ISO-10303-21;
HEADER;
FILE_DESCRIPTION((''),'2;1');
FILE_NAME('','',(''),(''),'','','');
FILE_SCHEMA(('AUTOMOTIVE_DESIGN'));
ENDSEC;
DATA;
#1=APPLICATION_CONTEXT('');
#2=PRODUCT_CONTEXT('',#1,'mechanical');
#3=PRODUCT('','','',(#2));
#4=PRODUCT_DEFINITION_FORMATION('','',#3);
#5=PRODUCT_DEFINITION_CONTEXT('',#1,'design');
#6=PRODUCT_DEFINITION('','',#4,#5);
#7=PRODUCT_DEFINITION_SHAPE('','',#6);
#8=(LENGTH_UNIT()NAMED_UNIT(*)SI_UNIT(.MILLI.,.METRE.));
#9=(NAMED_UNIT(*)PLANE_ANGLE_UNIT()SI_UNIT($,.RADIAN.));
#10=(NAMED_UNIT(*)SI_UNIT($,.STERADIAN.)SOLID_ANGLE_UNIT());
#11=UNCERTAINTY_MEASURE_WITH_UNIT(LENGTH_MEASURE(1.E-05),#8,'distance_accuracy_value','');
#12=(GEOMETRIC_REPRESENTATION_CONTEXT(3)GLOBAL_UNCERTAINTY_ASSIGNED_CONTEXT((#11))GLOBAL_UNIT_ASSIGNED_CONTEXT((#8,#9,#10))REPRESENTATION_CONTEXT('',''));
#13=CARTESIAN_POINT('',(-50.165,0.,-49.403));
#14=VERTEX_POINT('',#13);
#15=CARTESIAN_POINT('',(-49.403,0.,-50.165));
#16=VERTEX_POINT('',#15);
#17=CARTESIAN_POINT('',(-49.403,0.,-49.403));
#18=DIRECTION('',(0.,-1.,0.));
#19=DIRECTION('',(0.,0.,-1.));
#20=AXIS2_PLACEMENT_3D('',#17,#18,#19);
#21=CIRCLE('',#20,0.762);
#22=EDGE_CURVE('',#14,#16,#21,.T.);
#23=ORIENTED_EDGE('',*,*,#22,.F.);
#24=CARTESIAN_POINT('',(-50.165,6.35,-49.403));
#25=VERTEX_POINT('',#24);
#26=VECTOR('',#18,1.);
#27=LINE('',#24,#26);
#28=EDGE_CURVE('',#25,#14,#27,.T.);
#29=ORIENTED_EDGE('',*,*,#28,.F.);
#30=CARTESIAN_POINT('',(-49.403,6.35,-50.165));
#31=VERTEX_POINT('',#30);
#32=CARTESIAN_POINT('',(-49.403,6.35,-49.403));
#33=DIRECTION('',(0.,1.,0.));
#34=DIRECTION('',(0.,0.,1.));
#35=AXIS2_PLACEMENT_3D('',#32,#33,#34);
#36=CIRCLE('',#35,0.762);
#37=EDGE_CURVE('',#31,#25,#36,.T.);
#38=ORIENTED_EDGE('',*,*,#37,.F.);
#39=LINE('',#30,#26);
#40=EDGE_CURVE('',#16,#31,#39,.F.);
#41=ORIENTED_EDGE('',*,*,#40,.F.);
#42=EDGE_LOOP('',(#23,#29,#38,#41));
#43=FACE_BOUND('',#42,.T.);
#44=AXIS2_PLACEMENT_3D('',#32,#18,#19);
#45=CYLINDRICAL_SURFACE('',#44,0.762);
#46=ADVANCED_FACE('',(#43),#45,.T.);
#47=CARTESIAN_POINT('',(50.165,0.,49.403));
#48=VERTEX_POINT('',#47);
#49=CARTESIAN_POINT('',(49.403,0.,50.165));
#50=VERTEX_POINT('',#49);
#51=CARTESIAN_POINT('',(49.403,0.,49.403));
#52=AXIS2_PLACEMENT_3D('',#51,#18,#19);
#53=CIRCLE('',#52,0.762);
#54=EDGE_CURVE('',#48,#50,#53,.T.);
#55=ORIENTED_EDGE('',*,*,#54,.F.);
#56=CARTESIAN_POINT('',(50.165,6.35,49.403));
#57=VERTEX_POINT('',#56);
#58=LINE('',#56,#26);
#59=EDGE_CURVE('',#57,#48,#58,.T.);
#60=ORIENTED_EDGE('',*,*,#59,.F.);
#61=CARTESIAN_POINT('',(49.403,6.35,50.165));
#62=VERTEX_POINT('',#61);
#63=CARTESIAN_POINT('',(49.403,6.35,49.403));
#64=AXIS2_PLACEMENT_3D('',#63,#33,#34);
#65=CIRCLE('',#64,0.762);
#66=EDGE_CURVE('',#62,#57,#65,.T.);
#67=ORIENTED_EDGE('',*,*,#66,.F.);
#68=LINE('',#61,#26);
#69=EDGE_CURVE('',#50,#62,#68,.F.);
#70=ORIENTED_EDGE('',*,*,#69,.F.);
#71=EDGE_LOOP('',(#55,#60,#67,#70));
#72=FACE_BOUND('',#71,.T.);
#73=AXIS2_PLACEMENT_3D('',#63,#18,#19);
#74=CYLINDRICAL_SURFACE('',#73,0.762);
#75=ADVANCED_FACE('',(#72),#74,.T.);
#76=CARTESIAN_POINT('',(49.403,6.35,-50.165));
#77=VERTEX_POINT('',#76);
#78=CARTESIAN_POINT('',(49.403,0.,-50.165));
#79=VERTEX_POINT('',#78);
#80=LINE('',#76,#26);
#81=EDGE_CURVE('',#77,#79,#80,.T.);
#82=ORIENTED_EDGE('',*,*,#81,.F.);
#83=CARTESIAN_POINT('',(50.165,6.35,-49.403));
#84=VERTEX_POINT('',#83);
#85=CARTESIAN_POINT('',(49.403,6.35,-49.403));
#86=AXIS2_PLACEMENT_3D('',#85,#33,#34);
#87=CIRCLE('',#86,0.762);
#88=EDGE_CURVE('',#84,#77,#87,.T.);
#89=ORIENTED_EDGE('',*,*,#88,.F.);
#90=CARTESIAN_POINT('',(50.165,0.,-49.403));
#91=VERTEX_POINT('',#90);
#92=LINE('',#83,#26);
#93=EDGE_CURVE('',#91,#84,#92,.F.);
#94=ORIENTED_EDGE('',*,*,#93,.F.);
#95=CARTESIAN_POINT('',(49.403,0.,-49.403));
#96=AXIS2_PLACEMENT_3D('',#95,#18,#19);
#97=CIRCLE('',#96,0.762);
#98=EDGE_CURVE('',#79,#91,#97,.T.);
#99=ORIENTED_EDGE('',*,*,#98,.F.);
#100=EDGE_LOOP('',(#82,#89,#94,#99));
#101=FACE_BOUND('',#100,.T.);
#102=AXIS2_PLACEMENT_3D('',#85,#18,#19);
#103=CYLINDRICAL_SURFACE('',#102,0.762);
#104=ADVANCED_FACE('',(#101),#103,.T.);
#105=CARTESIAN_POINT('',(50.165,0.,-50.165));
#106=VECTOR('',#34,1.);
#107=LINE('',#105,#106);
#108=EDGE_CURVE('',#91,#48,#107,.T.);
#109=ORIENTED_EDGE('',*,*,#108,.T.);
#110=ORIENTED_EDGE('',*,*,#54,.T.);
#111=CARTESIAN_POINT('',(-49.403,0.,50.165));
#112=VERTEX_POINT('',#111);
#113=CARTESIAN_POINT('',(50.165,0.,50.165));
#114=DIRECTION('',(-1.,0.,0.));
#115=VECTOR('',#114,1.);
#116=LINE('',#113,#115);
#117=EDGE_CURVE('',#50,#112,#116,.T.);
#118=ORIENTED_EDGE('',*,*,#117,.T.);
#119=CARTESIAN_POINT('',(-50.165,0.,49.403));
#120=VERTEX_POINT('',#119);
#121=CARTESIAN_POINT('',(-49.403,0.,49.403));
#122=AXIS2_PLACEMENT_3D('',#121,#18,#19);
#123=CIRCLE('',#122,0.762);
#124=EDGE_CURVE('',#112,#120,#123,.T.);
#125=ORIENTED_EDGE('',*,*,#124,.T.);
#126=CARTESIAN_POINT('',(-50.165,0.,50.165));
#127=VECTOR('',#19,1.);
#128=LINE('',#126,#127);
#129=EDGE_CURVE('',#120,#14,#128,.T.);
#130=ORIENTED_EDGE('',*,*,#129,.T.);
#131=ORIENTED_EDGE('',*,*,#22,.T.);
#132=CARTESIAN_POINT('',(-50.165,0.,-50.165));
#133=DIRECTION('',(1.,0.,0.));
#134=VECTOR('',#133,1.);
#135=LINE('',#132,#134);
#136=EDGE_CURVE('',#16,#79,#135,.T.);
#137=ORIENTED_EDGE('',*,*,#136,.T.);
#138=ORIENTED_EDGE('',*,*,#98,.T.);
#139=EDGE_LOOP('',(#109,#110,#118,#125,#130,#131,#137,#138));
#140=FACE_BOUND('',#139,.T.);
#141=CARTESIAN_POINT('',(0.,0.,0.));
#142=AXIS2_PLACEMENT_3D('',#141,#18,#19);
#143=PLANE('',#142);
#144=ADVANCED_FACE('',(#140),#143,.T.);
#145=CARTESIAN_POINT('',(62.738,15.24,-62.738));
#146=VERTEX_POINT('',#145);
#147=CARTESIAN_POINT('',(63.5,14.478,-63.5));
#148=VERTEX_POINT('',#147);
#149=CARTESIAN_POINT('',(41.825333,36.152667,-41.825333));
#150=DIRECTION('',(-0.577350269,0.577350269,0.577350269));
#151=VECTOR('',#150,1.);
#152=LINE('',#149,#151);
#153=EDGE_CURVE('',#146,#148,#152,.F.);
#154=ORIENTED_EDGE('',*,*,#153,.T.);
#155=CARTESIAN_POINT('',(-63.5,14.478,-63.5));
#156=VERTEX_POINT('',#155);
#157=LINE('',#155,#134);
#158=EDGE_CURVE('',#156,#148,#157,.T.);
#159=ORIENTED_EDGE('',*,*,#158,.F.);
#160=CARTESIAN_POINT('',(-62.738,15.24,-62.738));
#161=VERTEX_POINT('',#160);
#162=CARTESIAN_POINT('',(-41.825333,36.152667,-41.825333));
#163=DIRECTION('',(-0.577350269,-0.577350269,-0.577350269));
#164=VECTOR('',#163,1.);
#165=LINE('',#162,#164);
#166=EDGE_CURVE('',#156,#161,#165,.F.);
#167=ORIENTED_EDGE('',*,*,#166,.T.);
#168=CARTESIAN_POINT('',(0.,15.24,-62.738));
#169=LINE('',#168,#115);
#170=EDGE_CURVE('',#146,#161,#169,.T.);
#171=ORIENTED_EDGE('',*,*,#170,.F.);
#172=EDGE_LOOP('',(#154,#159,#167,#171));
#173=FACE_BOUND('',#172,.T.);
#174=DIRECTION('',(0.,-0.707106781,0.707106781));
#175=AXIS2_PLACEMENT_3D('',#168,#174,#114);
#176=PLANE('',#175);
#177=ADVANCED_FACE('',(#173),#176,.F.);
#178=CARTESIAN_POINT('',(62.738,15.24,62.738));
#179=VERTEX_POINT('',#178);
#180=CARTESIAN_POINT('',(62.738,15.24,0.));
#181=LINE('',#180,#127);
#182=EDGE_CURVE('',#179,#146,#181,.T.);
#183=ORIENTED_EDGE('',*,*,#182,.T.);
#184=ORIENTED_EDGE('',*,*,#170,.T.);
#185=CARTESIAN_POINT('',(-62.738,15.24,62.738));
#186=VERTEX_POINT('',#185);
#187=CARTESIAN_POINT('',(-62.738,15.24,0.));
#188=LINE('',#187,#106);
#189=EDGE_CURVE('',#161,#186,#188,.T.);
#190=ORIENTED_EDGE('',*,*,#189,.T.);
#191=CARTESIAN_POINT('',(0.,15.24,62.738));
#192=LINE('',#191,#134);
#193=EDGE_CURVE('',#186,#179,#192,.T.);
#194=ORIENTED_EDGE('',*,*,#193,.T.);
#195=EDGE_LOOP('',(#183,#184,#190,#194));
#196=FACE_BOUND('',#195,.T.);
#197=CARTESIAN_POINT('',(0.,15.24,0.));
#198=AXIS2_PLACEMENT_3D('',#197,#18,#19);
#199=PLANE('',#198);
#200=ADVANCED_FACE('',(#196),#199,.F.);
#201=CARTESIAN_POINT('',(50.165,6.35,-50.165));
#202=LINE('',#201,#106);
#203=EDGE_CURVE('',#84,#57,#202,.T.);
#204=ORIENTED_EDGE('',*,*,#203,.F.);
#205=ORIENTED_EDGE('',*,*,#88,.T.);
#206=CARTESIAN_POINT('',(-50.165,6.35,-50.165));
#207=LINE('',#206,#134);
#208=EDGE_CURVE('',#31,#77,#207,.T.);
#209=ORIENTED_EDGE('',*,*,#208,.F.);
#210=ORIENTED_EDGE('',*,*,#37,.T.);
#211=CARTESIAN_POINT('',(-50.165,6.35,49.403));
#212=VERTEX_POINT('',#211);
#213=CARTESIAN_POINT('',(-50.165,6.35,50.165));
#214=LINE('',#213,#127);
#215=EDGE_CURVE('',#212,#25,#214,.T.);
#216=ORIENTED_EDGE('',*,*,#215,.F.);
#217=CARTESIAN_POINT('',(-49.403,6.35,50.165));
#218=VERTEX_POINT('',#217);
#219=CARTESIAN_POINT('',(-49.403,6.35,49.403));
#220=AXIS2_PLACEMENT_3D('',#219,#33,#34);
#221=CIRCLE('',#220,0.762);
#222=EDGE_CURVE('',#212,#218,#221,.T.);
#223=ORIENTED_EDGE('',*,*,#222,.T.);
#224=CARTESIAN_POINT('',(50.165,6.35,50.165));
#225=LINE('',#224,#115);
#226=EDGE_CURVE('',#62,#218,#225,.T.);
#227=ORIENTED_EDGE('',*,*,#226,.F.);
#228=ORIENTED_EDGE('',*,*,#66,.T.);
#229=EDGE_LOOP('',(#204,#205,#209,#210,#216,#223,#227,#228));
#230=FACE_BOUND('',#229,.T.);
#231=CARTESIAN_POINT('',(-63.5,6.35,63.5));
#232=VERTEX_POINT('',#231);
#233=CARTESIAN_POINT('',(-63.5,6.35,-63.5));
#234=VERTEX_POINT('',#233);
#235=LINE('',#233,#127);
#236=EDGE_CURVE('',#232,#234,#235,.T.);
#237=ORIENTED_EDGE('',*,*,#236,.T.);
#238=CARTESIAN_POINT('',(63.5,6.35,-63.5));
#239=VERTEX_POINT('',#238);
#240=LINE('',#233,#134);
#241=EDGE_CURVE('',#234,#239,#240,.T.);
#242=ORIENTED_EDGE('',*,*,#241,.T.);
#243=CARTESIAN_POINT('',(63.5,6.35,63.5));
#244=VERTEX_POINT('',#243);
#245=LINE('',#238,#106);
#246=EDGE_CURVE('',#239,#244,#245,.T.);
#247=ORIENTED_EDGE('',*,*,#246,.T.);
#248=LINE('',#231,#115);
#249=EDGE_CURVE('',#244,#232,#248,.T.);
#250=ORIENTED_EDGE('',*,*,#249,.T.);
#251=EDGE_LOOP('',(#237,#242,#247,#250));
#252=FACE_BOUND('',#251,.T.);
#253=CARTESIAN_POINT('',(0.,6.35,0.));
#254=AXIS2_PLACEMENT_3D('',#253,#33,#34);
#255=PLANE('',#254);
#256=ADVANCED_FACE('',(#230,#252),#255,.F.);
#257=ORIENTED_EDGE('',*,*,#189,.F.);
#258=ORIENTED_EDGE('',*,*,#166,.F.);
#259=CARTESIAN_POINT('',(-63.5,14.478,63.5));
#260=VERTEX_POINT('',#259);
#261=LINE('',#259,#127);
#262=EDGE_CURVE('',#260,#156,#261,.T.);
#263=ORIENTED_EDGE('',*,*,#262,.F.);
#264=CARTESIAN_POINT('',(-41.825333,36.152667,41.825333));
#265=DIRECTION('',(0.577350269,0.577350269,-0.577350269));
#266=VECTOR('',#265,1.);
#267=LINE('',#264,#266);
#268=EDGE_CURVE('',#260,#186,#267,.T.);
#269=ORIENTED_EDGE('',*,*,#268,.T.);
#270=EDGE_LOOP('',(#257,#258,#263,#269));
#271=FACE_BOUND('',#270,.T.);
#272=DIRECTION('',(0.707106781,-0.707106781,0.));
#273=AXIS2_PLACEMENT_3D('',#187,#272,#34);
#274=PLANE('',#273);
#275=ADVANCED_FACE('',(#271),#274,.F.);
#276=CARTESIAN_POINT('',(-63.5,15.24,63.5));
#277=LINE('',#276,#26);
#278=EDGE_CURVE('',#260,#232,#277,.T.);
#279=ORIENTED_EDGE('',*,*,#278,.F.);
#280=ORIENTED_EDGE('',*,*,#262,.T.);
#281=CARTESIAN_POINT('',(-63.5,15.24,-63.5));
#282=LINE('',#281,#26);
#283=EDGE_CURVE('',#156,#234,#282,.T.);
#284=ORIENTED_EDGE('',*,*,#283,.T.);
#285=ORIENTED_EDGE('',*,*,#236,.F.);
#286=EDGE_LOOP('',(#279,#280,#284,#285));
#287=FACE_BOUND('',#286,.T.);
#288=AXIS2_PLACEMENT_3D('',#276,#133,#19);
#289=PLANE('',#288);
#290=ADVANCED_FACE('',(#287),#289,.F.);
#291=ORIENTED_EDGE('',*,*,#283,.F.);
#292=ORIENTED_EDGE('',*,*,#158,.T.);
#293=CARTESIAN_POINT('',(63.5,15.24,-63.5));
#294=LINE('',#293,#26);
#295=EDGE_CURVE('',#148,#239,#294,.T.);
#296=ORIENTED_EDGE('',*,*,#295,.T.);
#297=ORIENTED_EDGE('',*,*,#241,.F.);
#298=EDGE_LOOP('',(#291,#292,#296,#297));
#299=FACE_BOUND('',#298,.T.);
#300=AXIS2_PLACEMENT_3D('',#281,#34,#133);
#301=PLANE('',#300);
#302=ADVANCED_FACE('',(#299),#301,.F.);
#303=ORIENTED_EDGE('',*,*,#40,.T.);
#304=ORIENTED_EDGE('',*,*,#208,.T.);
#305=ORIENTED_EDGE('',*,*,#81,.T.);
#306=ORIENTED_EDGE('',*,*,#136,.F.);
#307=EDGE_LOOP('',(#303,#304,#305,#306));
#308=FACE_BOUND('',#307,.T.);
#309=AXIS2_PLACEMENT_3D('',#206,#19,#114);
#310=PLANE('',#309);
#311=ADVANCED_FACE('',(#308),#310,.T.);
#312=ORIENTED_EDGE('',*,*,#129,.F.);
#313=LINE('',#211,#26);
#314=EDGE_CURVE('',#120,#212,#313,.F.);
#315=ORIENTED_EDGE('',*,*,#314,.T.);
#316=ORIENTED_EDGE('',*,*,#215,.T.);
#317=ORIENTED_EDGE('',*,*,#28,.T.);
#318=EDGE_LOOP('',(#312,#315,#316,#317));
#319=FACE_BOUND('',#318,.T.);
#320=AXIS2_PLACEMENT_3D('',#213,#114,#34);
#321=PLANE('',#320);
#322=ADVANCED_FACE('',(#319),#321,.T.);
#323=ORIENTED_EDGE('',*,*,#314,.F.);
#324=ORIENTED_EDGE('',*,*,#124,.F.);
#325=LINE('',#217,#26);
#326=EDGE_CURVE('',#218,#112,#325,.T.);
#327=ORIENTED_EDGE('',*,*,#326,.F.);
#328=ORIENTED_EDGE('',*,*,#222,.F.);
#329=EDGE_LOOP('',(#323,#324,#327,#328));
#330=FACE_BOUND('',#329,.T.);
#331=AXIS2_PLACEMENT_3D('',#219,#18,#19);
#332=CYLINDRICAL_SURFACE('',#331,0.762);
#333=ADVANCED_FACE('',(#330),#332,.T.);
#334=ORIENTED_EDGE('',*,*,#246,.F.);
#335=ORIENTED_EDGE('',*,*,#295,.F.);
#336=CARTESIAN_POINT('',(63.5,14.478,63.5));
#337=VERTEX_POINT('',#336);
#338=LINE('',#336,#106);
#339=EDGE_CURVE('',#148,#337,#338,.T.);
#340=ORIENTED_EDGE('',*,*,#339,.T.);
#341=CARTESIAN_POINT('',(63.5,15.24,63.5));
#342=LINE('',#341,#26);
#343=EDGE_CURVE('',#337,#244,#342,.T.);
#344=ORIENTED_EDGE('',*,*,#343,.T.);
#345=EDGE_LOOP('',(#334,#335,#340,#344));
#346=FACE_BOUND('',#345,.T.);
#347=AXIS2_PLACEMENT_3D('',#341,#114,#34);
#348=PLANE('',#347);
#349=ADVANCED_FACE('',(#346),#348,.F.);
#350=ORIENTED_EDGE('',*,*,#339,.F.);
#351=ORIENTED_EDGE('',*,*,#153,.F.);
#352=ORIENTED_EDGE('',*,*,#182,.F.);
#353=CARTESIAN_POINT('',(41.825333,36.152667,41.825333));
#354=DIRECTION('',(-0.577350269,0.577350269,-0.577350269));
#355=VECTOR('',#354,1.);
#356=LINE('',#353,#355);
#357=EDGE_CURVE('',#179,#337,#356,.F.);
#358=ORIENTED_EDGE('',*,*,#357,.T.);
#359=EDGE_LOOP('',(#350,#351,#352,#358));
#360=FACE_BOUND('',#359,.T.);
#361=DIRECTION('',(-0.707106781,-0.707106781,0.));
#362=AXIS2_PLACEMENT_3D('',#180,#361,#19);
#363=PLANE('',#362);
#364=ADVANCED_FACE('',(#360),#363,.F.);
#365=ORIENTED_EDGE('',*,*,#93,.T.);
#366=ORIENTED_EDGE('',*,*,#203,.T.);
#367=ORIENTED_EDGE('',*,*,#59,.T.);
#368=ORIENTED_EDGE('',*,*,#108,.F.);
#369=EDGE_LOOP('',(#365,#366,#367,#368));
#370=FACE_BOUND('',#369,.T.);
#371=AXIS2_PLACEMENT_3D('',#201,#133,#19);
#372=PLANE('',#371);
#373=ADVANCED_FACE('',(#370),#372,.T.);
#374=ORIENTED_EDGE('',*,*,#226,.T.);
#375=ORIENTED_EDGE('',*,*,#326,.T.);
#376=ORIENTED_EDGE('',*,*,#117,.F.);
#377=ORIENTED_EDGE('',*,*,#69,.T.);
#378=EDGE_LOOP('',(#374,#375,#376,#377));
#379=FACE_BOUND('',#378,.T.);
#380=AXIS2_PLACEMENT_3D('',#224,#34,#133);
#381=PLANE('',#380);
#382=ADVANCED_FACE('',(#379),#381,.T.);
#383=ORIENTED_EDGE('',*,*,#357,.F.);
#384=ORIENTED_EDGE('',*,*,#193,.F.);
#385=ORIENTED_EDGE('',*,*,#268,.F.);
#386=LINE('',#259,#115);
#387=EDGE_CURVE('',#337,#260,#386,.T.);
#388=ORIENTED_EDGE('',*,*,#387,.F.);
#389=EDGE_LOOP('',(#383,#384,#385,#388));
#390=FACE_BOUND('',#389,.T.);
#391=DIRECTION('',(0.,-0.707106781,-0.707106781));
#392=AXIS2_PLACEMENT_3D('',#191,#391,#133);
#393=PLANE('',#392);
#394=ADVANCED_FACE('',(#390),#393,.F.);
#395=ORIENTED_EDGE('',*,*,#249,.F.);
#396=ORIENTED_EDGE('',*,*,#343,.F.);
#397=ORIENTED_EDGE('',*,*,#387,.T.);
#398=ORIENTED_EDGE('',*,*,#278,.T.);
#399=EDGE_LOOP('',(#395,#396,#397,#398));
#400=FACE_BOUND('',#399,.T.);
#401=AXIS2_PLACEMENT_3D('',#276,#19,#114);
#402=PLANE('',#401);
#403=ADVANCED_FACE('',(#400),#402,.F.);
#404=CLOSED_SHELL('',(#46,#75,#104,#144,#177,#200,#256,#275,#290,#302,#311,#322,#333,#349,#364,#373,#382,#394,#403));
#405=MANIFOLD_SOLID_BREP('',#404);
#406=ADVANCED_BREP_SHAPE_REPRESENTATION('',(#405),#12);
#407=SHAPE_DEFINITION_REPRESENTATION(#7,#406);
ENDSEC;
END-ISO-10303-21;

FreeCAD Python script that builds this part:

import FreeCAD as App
import Part
import Sketcher
Q = App.Units.Quantity


def edges_at(feature, points):
    """Names of the edges that pass closest to the given points."""
    edges = feature.Shape.Edges
    near = lambda p: min(range(len(edges)), key=lambda i: edges[i].distToShape(Part.Vertex(*p))[0])
    return sorted({f"Edge{near(p) + 1}" for p in points})

doc = App.newDocument("Part")
params = doc.addObject("Spreadsheet::Sheet", "Params")
for row, (alias, value) in enumerate([
    ("sketch1_width", "5 in"),
    ("pad1_length", "0.6 in"),
    ("sketch2_width", "5 in"),
    ("sketch2_width2", "3.95 in"),
    ("pocket1_length", "0.25 in"),
    ("fillet_radius", "0.03 in"),
    ("chamfer_size", "0.03 in"),
], start=1):
    params.set(f"A{row}", alias)
    params.set(f"B{row}", "=" + value)
    params.setAlias(f"B{row}", alias)

body = doc.addObject("PartDesign::Body", "Body")

# Sketch on XZ plane
sketch1 = doc.addObject("Sketcher::SketchObject", "Sketch")
body.addObject(sketch1)
sketch1.AttachmentSupport = (doc.XZ_Plane, [""])
sketch1.MapMode = "FlatFace"
sketch1.addGeometry([
    Part.LineSegment(App.Vector(-64, -64, 0), App.Vector(-64, 64, 0)),
    Part.LineSegment(App.Vector(-64, 64, 0), App.Vector(64, 64, 0)),
    Part.LineSegment(App.Vector(64, 64, 0), App.Vector(64, -64, 0)),
    Part.LineSegment(App.Vector(64, -64, 0), App.Vector(-64, -64, 0)),
], False)
sketch1.addConstraint([
    Sketcher.Constraint("Coincident", 0, 2, 1, 1),
    Sketcher.Constraint("Coincident", 1, 2, 2, 1),
    Sketcher.Constraint("Coincident", 2, 2, 3, 1),
    Sketcher.Constraint("Coincident", 3, 2, 0, 1),
    Sketcher.Constraint("Vertical", 0),
    Sketcher.Constraint("Horizontal", 1),
    Sketcher.Constraint("Vertical", 2),
    Sketcher.Constraint("Horizontal", 3),
    Sketcher.Constraint("Symmetric", 0, 2, 2, 2, -1, 1),
    Sketcher.Constraint("Equal", 3, 0),
    Sketcher.Constraint("DistanceX", 1, 1, 1, 2, Q("5 in")),
])
sketch1.setExpression("Constraints[10]", "Params.sketch1_width")
pad1 = doc.addObject("PartDesign::Pad", "Pad")
body.addObject(pad1)
pad1.Profile = sketch1
pad1.setExpression("Length", "Params.pad1_length")
pad1.Reversed = True

# Sketch on XZ plane
sketch2 = doc.addObject("Sketcher::SketchObject", "Sketch001")
body.addObject(sketch2)
sketch2.AttachmentSupport = (doc.XZ_Plane, [""])
sketch2.MapMode = "FlatFace"
sketch2.addGeometry([
    Part.LineSegment(App.Vector(-64, 64, 0), App.Vector(-64, -64, 0)),  # 0
    Part.LineSegment(App.Vector(-64, -64, 0), App.Vector(64, -64, 0)),  # 1
    Part.LineSegment(App.Vector(64, -64, 0), App.Vector(64, 64, 0)),  # 2
    Part.LineSegment(App.Vector(64, 64, 0), App.Vector(-64, 64, 0)),  # 3
    Part.LineSegment(App.Vector(50, -50, 0), App.Vector(-50, -50, 0)),  # 4
    Part.LineSegment(App.Vector(-50, -50, 0), App.Vector(-50, 50, 0)),  # 5
    Part.LineSegment(App.Vector(-50, 50, 0), App.Vector(50, 50, 0)),  # 6
    Part.LineSegment(App.Vector(50, 50, 0), App.Vector(50, -50, 0)),  # 7
], False)
sketch2.addConstraint([
    Sketcher.Constraint("Coincident", 0, 2, 1, 1),
    Sketcher.Constraint("Coincident", 1, 2, 2, 1),
    Sketcher.Constraint("Coincident", 2, 2, 3, 1),
    Sketcher.Constraint("Coincident", 3, 2, 0, 1),
    Sketcher.Constraint("Coincident", 4, 2, 5, 1),
    Sketcher.Constraint("Coincident", 5, 2, 6, 1),
    Sketcher.Constraint("Coincident", 6, 2, 7, 1),
    Sketcher.Constraint("Coincident", 7, 2, 4, 1),
    Sketcher.Constraint("Vertical", 0),
    Sketcher.Constraint("Horizontal", 1),
    Sketcher.Constraint("Vertical", 2),
    Sketcher.Constraint("Horizontal", 3),
    Sketcher.Constraint("Horizontal", 4),
    Sketcher.Constraint("Vertical", 5),
    Sketcher.Constraint("Horizontal", 6),
    Sketcher.Constraint("Vertical", 7),
    Sketcher.Constraint("Symmetric", 0, 2, 2, 2, -1, 1),
    Sketcher.Constraint("Symmetric", 4, 2, 6, 2, -1, 1),
    Sketcher.Constraint("Equal", 3, 0),
    Sketcher.Constraint("Equal", 6, 5),
    Sketcher.Constraint("DistanceX", 1, 1, 1, 2, Q("5 in")),
    Sketcher.Constraint("DistanceX", 4, 2, 4, 1, Q("3.95 in")),
])
sketch2.setExpression("Constraints[20]", "Params.sketch2_width")
sketch2.setExpression("Constraints[21]", "Params.sketch2_width2")
pocket1 = doc.addObject("PartDesign::Pocket", "Pocket")
body.addObject(pocket1)
pocket1.Profile = sketch2
pocket1.setExpression("Length", "Params.pocket1_length")
doc.recompute()

fillet = doc.addObject("PartDesign::Fillet", "Fillet")
body.addObject(fillet)
fillet.Base = (pocket1, edges_at(pocket1, [
    (-50.165, 3.175, -50.165),
    (-50.165, 3.175, 50.165),
    (50.165, 3.175, 50.165),
    (50.165, 3.175, -50.165),
]))
fillet.setExpression("Radius", "Params.fillet_radius")
doc.recompute()

chamfer = doc.addObject("PartDesign::Chamfer", "Chamfer")
body.addObject(chamfer)
chamfer.Base = (fillet, edges_at(fillet, [
    (-63.5, 15.24, 0),
    (0, 15.24, 63.5),
    (63.5, 15.24, 0),
    (0, 15.24, -63.5),
]))
chamfer.setExpression("Size", "Params.chamfer_size")

doc.recompute()
